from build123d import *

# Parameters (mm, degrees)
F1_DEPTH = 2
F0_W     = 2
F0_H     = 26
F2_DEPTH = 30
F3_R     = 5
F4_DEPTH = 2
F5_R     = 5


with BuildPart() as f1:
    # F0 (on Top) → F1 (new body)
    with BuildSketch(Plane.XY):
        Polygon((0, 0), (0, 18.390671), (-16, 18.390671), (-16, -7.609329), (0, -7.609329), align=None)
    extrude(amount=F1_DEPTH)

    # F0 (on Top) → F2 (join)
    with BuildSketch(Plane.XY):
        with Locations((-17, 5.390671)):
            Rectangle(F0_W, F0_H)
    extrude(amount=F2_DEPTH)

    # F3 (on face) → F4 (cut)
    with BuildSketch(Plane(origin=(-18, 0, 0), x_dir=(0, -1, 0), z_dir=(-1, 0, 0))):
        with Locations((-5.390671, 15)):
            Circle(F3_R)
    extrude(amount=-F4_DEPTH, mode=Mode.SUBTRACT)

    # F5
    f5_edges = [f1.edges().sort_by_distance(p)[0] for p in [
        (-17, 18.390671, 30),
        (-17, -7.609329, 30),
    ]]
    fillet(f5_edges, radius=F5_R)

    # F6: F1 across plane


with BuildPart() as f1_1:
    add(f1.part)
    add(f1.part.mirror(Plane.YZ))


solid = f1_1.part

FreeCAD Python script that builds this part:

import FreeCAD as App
import Part
import Sketcher

V = App.Vector
Q = App.Units.Quantity


def edges_at(feature, points):
    """Names of the edges that pass closest to the given points."""
    edges = feature.Shape.Edges
    near = lambda p: min(range(len(edges)), key=lambda i: edges[i].distToShape(Part.Vertex(*p))[0])
    return sorted({f"Edge{near(p) + 1}" for p in points})

doc = App.newDocument("Part")
body = doc.addObject("PartDesign::Body", "Body")

# Sketch on XY plane
sketch1 = doc.addObject("Sketcher::SketchObject", "Sketch")
body.addObject(sketch1)
sketch1.AttachmentSupport = (doc.XY_Plane, [""])
sketch1.MapMode = "FlatFace"
sketch1.addGeometry(Part.LineSegment(V(0, 18.390671, 0), V(-16, 18.390671, 0)), False)
sketch1.addGeometry(Part.LineSegment(V(-16, 18.390671, 0), V(-16, -7.609329, 0)), False)
sketch1.addGeometry(Part.LineSegment(V(-16, -7.609329, 0), V(0, -7.609329, 0)), False)
sketch1.addGeometry(Part.LineSegment(V(0, -7.609329, 0), V(0, 18.390671, 0)), False)
sketch1.addConstraint(Sketcher.Constraint("Coincident", 0, 2, 1, 1))
sketch1.addConstraint(Sketcher.Constraint("Coincident", 1, 2, 2, 1))
sketch1.addConstraint(Sketcher.Constraint("Coincident", 2, 2, 3, 1))
sketch1.addConstraint(Sketcher.Constraint("Coincident", 3, 2, 0, 1))
sketch1.addConstraint(Sketcher.Constraint("Horizontal", 0))
sketch1.addConstraint(Sketcher.Constraint("Vertical", 1))
sketch1.addConstraint(Sketcher.Constraint("Horizontal", 2))
sketch1.addConstraint(Sketcher.Constraint("Vertical", 3))
sketch1.addConstraint(Sketcher.Constraint("PointOnObject", 2, 2, -2))
sketch1.addConstraint(Sketcher.Constraint("DistanceX", 0, 2, 0, 1, Q("16 mm")))
sketch1.addConstraint(Sketcher.Constraint("DistanceY", 1, 2, 1, 1, Q("26 mm")))
sketch1.addConstraint(Sketcher.Constraint("DistanceY", -1, 1, 0, 2, Q("18.390671 mm")))
pad1 = doc.addObject("PartDesign::Pad", "Pad")
body.addObject(pad1)
pad1.Profile = sketch1
pad1.Length = 2

# Sketch on XY plane
sketch2 = doc.addObject("Sketcher::SketchObject", "Sketch001")
body.addObject(sketch2)
sketch2.AttachmentSupport = (doc.XY_Plane, [""])
sketch2.MapMode = "FlatFace"
sketch2.addGeometry(Part.LineSegment(V(-18, 18.390671, 0), V(-18, -7.609329, 0)), False)
sketch2.addGeometry(Part.LineSegment(V(-18, -7.609329, 0), V(-16, -7.609329, 0)), False)
sketch2.addGeometry(Part.LineSegment(V(-16, -7.609329, 0), V(-16, 18.390671, 0)), False)
sketch2.addGeometry(Part.LineSegment(V(-16, 18.390671, 0), V(-18, 18.390671, 0)), False)
sketch2.addConstraint(Sketcher.Constraint("Coincident", 0, 2, 1, 1))
sketch2.addConstraint(Sketcher.Constraint("Coincident", 1, 2, 2, 1))
sketch2.addConstraint(Sketcher.Constraint("Coincident", 2, 2, 3, 1))
sketch2.addConstraint(Sketcher.Constraint("Coincident", 3, 2, 0, 1))
sketch2.addConstraint(Sketcher.Constraint("Vertical", 0))
sketch2.addConstraint(Sketcher.Constraint("Horizontal", 1))
sketch2.addConstraint(Sketcher.Constraint("Vertical", 2))
sketch2.addConstraint(Sketcher.Constraint("Horizontal", 3))
sketch2.addConstraint(Sketcher.Constraint("DistanceX", 1, 1, 1, 2, Q("2 mm")))
sketch2.addConstraint(Sketcher.Constraint("DistanceY", 0, 2, 0, 1, Q("26 mm")))
sketch2.addConstraint(Sketcher.Constraint("DistanceX", 0, 2, -1, 1, Q("18 mm")))
sketch2.addConstraint(Sketcher.Constraint("DistanceY", 0, 2, -1, 1, Q("7.609329 mm")))
pad2 = doc.addObject("PartDesign::Pad", "Pad001")
body.addObject(pad2)
pad2.Profile = sketch2
pad2.Length = 30

# Sketch on YZ plane
sketch3 = doc.addObject("Sketcher::SketchObject", "Sketch002")
body.addObject(sketch3)
sketch3.AttachmentSupport = (doc.YZ_Plane, [""])
sketch3.MapMode = "FlatFace"
sketch3.AttachmentOffset = App.Placement(V(0, 0, -18), App.Rotation())
sketch3.addGeometry(Part.Circle(V(5.390671, 15, 0), V(0, 0, 1), 5), False)
sketch3.addConstraint(Sketcher.Constraint("Diameter", 0, Q("10 mm")))
sketch3.addConstraint(Sketcher.Constraint("DistanceY", -1, 1, 0, 3, Q("15 mm")))
sketch3.addConstraint(Sketcher.Constraint("DistanceX", -1, 1, 0, 3, Q("5.390671 mm")))
pocket1 = doc.addObject("PartDesign::Pocket", "Pocket")
body.addObject(pocket1)
pocket1.Profile = sketch3
pocket1.Length = 2
pocket1.Reversed = True
doc.recompute()

fillet = doc.addObject("PartDesign::Fillet", "Fillet")
body.addObject(fillet)
fillet.Base = (pocket1, edges_at(pocket1, [(-17, 18.391, 30), (-17, -7.609, 30)]))
fillet.Radius = 5
body2 = doc.addObject("PartDesign::Body", "Body001")
doc.recompute()

body2.BaseFeature = body
doc.recompute()

mirroring = doc.addObject("Part::Mirroring", "Mirroring")
mirroring.Source = body
mirroring.Base = V(0, 0, 0)
mirroring.Normal = V(1, 0, 0)
body3 = doc.addObject("PartDesign::Body", "Body002")
body3.BaseFeature = mirroring
boolean = doc.addObject("PartDesign::Boolean", "Boolean")
body2.addObject(boolean)
boolean.Type = "Fuse"
boolean.addObjects([body3])
doc.recompute()
mirroring.Visibility = False

doc.recompute()
